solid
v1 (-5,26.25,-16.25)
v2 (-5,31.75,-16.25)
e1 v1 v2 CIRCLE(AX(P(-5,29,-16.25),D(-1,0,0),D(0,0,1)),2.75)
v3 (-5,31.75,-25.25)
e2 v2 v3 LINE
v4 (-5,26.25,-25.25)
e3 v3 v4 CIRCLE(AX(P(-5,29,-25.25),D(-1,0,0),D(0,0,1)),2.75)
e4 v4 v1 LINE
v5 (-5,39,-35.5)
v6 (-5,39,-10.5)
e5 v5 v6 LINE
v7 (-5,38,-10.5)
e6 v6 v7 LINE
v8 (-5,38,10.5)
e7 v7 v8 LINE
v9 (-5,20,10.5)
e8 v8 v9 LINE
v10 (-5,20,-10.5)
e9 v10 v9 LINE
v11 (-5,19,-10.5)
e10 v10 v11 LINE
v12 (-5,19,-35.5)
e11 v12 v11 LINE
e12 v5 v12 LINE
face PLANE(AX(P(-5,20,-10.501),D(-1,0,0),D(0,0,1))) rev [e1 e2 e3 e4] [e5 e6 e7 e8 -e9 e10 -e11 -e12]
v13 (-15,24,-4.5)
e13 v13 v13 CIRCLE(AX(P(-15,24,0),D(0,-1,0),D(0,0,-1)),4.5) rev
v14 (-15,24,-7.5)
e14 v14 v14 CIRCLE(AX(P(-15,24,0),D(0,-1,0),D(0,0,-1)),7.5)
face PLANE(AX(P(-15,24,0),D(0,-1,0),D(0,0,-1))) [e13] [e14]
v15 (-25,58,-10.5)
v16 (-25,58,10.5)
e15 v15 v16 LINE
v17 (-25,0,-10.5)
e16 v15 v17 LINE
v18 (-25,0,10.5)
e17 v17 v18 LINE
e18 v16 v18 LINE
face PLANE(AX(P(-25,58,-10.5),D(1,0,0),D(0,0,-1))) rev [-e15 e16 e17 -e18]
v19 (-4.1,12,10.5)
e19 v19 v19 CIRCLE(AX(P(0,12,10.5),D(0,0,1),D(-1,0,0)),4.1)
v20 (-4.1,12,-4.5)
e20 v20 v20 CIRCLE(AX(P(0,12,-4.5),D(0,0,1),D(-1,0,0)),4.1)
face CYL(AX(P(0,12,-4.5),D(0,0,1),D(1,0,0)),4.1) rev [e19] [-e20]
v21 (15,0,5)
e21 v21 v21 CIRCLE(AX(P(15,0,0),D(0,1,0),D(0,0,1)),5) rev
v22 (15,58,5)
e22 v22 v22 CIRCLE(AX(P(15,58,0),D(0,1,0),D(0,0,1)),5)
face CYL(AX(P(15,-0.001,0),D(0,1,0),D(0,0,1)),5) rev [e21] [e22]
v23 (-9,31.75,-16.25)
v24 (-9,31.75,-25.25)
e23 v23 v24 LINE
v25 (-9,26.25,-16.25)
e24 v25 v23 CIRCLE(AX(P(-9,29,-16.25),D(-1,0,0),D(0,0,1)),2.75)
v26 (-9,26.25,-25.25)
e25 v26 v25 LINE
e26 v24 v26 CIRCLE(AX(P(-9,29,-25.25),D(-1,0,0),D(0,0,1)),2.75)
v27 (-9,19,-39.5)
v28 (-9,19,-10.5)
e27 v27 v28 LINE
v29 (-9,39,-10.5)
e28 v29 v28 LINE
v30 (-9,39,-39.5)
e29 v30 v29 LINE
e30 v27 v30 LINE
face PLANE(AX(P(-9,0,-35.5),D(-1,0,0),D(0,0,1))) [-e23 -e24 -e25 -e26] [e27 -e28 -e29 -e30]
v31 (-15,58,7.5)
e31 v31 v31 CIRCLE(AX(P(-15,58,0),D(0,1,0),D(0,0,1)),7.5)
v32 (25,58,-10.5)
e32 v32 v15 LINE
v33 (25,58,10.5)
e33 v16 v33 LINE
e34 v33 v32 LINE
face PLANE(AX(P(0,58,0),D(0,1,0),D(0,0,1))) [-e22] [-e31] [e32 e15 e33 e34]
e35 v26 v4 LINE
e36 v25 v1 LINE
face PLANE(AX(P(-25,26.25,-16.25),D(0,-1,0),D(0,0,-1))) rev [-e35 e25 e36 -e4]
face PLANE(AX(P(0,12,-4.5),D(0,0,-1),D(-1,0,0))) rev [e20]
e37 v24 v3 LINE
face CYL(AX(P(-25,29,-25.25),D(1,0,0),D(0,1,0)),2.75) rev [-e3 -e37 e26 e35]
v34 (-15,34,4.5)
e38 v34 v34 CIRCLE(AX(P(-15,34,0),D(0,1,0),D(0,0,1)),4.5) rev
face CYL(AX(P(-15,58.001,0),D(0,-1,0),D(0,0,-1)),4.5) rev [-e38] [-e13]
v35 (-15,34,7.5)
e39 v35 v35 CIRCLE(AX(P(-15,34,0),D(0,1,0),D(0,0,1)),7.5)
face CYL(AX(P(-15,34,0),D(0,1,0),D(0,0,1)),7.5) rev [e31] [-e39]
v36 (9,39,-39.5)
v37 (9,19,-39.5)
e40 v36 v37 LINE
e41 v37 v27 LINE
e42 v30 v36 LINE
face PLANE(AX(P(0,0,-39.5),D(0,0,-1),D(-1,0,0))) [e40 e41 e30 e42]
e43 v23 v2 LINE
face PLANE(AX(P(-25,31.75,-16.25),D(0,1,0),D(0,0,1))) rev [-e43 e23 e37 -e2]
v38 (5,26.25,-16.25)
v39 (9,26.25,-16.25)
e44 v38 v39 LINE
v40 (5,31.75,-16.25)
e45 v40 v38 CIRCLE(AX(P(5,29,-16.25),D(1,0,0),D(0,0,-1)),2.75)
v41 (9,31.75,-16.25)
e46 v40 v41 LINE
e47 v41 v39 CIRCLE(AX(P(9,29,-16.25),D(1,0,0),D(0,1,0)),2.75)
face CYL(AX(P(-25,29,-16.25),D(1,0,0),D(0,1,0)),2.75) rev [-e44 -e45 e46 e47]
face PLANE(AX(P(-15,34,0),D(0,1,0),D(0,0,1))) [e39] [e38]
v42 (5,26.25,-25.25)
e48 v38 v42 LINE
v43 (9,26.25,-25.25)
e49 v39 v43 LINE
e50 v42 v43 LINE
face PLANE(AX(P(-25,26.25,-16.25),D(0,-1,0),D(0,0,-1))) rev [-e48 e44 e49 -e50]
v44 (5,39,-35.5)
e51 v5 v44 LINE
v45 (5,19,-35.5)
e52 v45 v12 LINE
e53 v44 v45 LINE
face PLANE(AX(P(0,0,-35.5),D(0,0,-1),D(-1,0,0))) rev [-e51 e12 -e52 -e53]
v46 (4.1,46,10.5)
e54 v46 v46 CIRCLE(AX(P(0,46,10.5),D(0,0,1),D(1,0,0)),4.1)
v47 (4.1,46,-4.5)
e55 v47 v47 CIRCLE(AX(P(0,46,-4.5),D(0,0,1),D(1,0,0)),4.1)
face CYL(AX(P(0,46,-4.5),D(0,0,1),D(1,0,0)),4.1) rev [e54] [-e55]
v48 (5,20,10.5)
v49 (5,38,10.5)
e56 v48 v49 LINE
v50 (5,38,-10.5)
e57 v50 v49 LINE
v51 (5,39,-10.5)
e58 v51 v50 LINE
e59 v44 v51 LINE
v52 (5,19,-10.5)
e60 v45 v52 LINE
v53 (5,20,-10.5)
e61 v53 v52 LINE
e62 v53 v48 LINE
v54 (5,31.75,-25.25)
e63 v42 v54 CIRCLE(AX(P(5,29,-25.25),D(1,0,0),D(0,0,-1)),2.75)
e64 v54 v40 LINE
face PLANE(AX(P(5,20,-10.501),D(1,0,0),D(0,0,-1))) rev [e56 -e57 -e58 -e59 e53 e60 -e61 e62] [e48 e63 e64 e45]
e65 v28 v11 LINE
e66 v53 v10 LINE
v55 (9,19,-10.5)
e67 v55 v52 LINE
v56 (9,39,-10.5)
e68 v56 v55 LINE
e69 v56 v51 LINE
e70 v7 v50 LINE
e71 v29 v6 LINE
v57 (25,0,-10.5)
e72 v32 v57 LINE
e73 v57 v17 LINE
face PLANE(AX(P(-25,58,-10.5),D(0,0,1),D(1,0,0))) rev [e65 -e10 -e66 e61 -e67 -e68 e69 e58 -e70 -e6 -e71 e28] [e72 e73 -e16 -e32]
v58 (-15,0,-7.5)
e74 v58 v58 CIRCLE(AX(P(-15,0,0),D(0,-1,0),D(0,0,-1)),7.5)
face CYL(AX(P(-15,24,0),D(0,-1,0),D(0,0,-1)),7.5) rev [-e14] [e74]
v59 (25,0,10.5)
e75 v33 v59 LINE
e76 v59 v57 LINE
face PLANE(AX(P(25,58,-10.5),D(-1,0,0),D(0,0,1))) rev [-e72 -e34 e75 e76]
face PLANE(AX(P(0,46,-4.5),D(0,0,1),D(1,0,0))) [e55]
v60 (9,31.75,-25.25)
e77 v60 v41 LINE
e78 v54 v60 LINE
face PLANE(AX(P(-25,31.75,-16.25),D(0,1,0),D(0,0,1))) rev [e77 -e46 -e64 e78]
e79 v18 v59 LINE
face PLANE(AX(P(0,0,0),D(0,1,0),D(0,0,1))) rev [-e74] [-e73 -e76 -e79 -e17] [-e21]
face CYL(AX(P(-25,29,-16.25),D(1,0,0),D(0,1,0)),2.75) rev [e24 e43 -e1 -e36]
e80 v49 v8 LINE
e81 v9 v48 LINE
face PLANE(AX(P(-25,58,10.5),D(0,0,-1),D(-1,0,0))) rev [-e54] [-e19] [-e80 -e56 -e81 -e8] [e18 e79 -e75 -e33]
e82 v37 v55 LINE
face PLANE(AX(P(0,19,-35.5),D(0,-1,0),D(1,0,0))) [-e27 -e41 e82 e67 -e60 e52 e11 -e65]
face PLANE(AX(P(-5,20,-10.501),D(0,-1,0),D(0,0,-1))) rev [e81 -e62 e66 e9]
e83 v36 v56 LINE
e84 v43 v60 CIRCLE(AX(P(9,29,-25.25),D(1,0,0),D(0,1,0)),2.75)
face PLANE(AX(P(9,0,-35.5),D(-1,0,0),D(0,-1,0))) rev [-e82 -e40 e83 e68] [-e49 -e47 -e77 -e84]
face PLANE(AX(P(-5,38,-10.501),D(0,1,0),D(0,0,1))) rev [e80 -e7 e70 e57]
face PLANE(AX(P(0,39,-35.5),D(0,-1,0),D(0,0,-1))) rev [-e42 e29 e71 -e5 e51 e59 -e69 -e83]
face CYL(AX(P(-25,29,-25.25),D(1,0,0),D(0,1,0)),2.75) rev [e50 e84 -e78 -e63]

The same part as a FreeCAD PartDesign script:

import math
import FreeCAD as App
import Part
import Sketcher


def add_polygon(sketch, points):
    """Adds a closed chain of lines whose ends are joined by coincident constraints."""
    first, n = sketch.GeometryCount, len(points)
    for a, b in zip(points, points[1:] + points[:1]):
        sketch.addGeometry(Part.LineSegment(App.Vector(*a, 0), App.Vector(*b, 0)), False)
    for i in range(n):
        sketch.addConstraint(Sketcher.Constraint("Coincident", first + i, 2, first + (i + 1) % n, 1))

doc = App.newDocument("Part")
body = doc.addObject("PartDesign::Body", "Body")

# Sketch on XZ plane
sketch1 = body.newObject("Sketcher::SketchObject", "Sketch")
sketch1.AttachmentSupport = (doc.getObject("XZ_Plane"), [""])
sketch1.MapMode = "FlatFace"
add_polygon(sketch1, [(-25, -10.5), (-25, 10.5), (25, 10.5), (25, -10.5)])  # lines 0-3
sketch1.addConstraint([
    Sketcher.Constraint("Vertical", 0),
    Sketcher.Constraint("Horizontal", 1),
    Sketcher.Constraint("Vertical", 2),
    Sketcher.Constraint("Horizontal", 3),
    Sketcher.Constraint("Symmetric", 0, 2, 2, 2, -1, 1),
    Sketcher.Constraint("DistanceX", 1, 1, 1, 2, 50.0),
    Sketcher.Constraint("DistanceY", 0, 1, 0, 2, 21.0),
])
pad1 = body.newObject("PartDesign::Pad", "Pad")
pad1.Profile = sketch1
pad1.Length = 58
pad1.Reversed = True

# Sketch on XZ plane
sketch2 = body.newObject("Sketcher::SketchObject", "Sketch001")
sketch2.AttachmentSupport = (doc.getObject("XZ_Plane"), [""])
sketch2.MapMode = "FlatFace"
sketch2.AttachmentOffset = App.Placement(App.Vector(0, 0, -58), App.Rotation())
sketch2.addGeometry(Part.Circle(App.Vector(-15, 0, 0), App.Vector(0, 0, 1), 7.5), False)
sketch2.addConstraint([
    Sketcher.Constraint("PointOnObject", 0, 3, -1),
    Sketcher.Constraint("Diameter", 0, 15.0),
    Sketcher.Constraint("DistanceX", 0, 3, -1, 1, 15.0),
])
pocket1 = body.newObject("PartDesign::Pocket", "Pocket")
pocket1.Profile = sketch2
pocket1.Length = 24
pocket1.Reversed = True

# Sketch on XZ plane
sketch3 = body.newObject("Sketcher::SketchObject", "Sketch002")
sketch3.AttachmentSupport = (doc.getObject("XZ_Plane"), [""])
sketch3.MapMode = "FlatFace"
sketch3.AttachmentOffset = App.Placement(App.Vector(0, 0, -58), App.Rotation())
sketch3.addGeometry(Part.Circle(App.Vector(15, 0, 0), App.Vector(0, 0, 1), 5), False)
sketch3.addConstraint([
    Sketcher.Constraint("PointOnObject", 0, 3, -1),
    Sketcher.Constraint("Diameter", 0, 10.0),
    Sketcher.Constraint("DistanceX", -1, 1, 0, 3, 15.0),
])
pocket2 = body.newObject("PartDesign::Pocket", "Pocket001")
pocket2.Profile = sketch3
pocket2.Type = "UpToFirst"
pocket2.Reversed = True

# Sketch on XZ plane
sketch4 = body.newObject("Sketcher::SketchObject", "Sketch003")
sketch4.AttachmentSupport = (doc.getObject("XZ_Plane"), [""])
sketch4.MapMode = "FlatFace"
sketch4.AttachmentOffset = App.Placement(App.Vector(0, 0, -24), App.Rotation())
sketch4.addGeometry(Part.Circle(App.Vector(-15, 0, 0), App.Vector(0, 0, 1), 7.5), False)
sketch4.addConstraint([
    Sketcher.Constraint("PointOnObject", 0, 3, -1),
    Sketcher.Constraint("Diameter", 0, 15.0),
    Sketcher.Constraint("DistanceX", 0, 3, -1, 1, 15.0),
])
pocket3 = body.newObject("PartDesign::Pocket", "Pocket002")
pocket3.Profile = sketch4
pocket3.Length = 24
pocket3.Reversed = True

# Sketch on XZ plane
sketch5 = body.newObject("Sketcher::SketchObject", "Sketch004")
sketch5.AttachmentSupport = (doc.getObject("XZ_Plane"), [""])
sketch5.MapMode = "FlatFace"
sketch5.addGeometry(Part.Circle(App.Vector(-15, 0, 0), App.Vector(0, 0, 1), 4.5), False)
sketch5.addConstraint([
    Sketcher.Constraint("PointOnObject", 0, 3, -1),
    Sketcher.Constraint("Diameter", 0, 9.0),
    Sketcher.Constraint("DistanceX", 0, 3, -1, 1, 15.0),
])
pocket4 = body.newObject("PartDesign::Pocket", "Pocket003")
pocket4.Profile = sketch5
pocket4.Length = 34

# Sketch on XY plane
sketch6 = body.newObject("Sketcher::SketchObject", "Sketch005")
sketch6.AttachmentSupport = (doc.getObject("XY_Plane"), [""])
sketch6.MapMode = "FlatFace"
sketch6.AttachmentOffset = App.Placement(App.Vector(0, 0, 10.5), App.Rotation())
add_polygon(sketch6, [(-5, 38), (-5, 20), (5, 20), (5, 38)])  # lines 0-3
sketch6.addConstraint([
    Sketcher.Constraint("Vertical", 0),
    Sketcher.Constraint("Horizontal", 1),
    Sketcher.Constraint("Vertical", 2),
    Sketcher.Constraint("Horizontal", 3),
    Sketcher.Constraint("DistanceX", 1, 1, 1, 2, 10.0),
    Sketcher.Constraint("DistanceY", 0, 2, 0, 1, 18.0),
    Sketcher.Constraint("DistanceX", 0, 2, -1, 1, 5.0),
    Sketcher.Constraint("DistanceY", -1, 1, 0, 2, 20.0),
])
pocket5 = body.newObject("PartDesign::Pocket", "Pocket004")
pocket5.Profile = sketch6
pocket5.Type = "UpToFirst"

# Sketch on XY plane
sketch7 = body.newObject("Sketcher::SketchObject", "Sketch006")
sketch7.AttachmentSupport = (doc.getObject("XY_Plane"), [""])
sketch7.MapMode = "FlatFace"
sketch7.AttachmentOffset = App.Placement(App.Vector(0, 0, 10.5), App.Rotation())
sketch7.addGeometry([
    Part.Circle(App.Vector(0, 46, 0), App.Vector(0, 0, 1), 4.1),
    Part.Circle(App.Vector(0, 12, 0), App.Vector(0, 0, 1), 4.1),
], False)
sketch7.addConstraint([
    Sketcher.Constraint("Equal", 0, 1),
    Sketcher.Constraint("PointOnObject", 0, 3, -2),
    Sketcher.Constraint("PointOnObject", 1, 3, -2),
    Sketcher.Constraint("Diameter", 0, 8.2),
    Sketcher.Constraint("DistanceY", -1, 1, 0, 3, 46.0),
    Sketcher.Constraint("DistanceY", -1, 1, 1, 3, 12.0),
])
pocket6 = body.newObject("PartDesign::Pocket", "Pocket005")
pocket6.Profile = sketch7
pocket6.Length = 15

# Sketch on XY plane
sketch8 = body.newObject("Sketcher::SketchObject", "Sketch007")
sketch8.AttachmentSupport = (doc.getObject("XY_Plane"), [""])
sketch8.MapMode = "FlatFace"
sketch8.AttachmentOffset = App.Placement(App.Vector(0, 0, -10.5), App.Rotation())
add_polygon(sketch8, [(-9, 19), (-9, 39), (-5, 39), (-5, 19)])  # lines 0-3
add_polygon(sketch8, [(9, 39), (9, 19), (5, 19), (5, 39)])  # lines 4-7
sketch8.addConstraint([
    Sketcher.Constraint("Vertical", 0),
    Sketcher.Constraint("Horizontal", 1),
    Sketcher.Constraint("Vertical", 2),
    Sketcher.Constraint("Horizontal", 3),
    Sketcher.Constraint("Vertical", 4),
    Sketcher.Constraint("Horizontal", 5),
    Sketcher.Constraint("Vertical", 6),
    Sketcher.Constraint("Horizontal", 7),
    Sketcher.Constraint("Symmetric", 3, 2, 4, 2, -2),
    Sketcher.Constraint("Symmetric", 1, 2, 6, 2, -2),
    Sketcher.Constraint("DistanceX", 1, 1, 1, 2, 4.0),
    Sketcher.Constraint("DistanceY", 0, 1, 0, 2, 20.0),
    Sketcher.Constraint("DistanceX", 0, 2, -1, 1, 9.0),
    Sketcher.Constraint("DistanceY", -1, 1, 0, 2, 39.0),
])
pad2 = body.newObject("PartDesign::Pad", "Pad001")
pad2.Profile = sketch8
pad2.Length = 25
pad2.Reversed = True

# Sketch on XY plane
sketch9 = body.newObject("Sketcher::SketchObject", "Sketch008")
sketch9.AttachmentSupport = (doc.getObject("XY_Plane"), [""])
sketch9.MapMode = "FlatFace"
sketch9.AttachmentOffset = App.Placement(App.Vector(0, 0, -35.5), App.Rotation())
add_polygon(sketch9, [(9, 39), (9, 19), (-9, 19), (-9, 39)])  # lines 0-3
sketch9.addConstraint([
    Sketcher.Constraint("Vertical", 0),
    Sketcher.Constraint("Horizontal", 1),
    Sketcher.Constraint("Vertical", 2),
    Sketcher.Constraint("Horizontal", 3),
    Sketcher.Constraint("DistanceX", 1, 2, 1, 1, 18.0),
    Sketcher.Constraint("DistanceY", 0, 2, 0, 1, 20.0),
    Sketcher.Constraint("DistanceX", -1, 1, 0, 2, 9.0),
    Sketcher.Constraint("DistanceY", -1, 1, 0, 2, 19.0),
])
pad3 = body.newObject("PartDesign::Pad", "Pad002")
pad3.Profile = sketch9
pad3.Length = 4
pad3.Reversed = True

# Sketch on YZ plane
sketch10 = body.newObject("Sketcher::SketchObject", "Sketch009")
sketch10.AttachmentSupport = (doc.getObject("YZ_Plane"), [""])
sketch10.MapMode = "FlatFace"
sketch10.AttachmentOffset = App.Placement(App.Vector(0, 0, 9), App.Rotation())
sketch10.addGeometry([
    Part.LineSegment(App.Vector(31.75, -25.25, 0), App.Vector(31.75, -16.25, 0)),
    Part.ArcOfCircle(Part.Circle(App.Vector(29, -16.25, 0), App.Vector(0, 0, 1), 2.75), math.radians(0), math.radians(180)),
    Part.LineSegment(App.Vector(26.25, -16.25, 0), App.Vector(26.25, -25.25, 0)),
    Part.ArcOfCircle(Part.Circle(App.Vector(29, -25.25, 0), App.Vector(0, 0, 1), 2.75), math.radians(180), math.radians(360)),
], False)
sketch10.addConstraint([
    Sketcher.Constraint("Tangent", 0, 2, 1, 1),
    Sketcher.Constraint("Tangent", 1, 2, 2, 1),
    Sketcher.Constraint("Tangent", 2, 2, 3, 1),
    Sketcher.Constraint("Tangent", 3, 2, 0, 1),
    Sketcher.Constraint("Vertical", 0),
    Sketcher.Constraint("Vertical", 2),
    Sketcher.Constraint("DistanceY", 0, 1, 0, 2, 9.0),
    Sketcher.Constraint("Radius", 1, 2.75),
    Sketcher.Constraint("DistanceX", -1, 1, 1, 3, 29.0),
    Sketcher.Constraint("DistanceY", 1, 3, -1, 1, 16.25),
])
pocket7 = body.newObject("PartDesign::Pocket", "Pocket006")
pocket7.Profile = sketch10
pocket7.Type = "ThroughAll"

doc.recompute()
